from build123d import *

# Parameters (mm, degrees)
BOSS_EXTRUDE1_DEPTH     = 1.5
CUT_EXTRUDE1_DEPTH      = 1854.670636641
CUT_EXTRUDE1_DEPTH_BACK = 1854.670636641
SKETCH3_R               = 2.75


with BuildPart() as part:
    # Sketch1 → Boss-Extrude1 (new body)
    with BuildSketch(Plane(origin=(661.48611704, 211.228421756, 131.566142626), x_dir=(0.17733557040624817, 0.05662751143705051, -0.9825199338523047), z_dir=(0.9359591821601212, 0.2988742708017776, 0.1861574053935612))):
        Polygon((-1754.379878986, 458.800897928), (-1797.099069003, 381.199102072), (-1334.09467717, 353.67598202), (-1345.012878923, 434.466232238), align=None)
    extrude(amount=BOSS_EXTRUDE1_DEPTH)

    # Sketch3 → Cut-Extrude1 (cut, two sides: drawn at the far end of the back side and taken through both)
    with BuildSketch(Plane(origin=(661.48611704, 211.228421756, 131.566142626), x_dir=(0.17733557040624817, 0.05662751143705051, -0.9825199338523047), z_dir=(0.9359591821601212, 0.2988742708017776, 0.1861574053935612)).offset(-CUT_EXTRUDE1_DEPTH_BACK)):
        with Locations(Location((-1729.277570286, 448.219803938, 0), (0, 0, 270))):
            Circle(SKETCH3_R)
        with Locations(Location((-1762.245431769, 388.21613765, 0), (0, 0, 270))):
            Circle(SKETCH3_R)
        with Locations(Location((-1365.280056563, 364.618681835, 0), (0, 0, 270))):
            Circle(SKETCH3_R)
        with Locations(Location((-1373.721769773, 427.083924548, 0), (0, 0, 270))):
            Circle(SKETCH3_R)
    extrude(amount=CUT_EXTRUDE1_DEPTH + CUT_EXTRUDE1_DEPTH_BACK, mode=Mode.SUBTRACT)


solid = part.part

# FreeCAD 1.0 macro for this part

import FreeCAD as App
import Part
import Sketcher
from FreeCAD import Vector
Q = App.Units.Quantity


def add_polygon(sketch, points):
    """Adds a closed chain of lines whose ends are joined by coincident constraints."""
    first, n = sketch.GeometryCount, len(points)
    for a, b in zip(points, points[1:] + points[:1]):
        sketch.addGeometry(Part.LineSegment(App.Vector(*a, 0), App.Vector(*b, 0)), False)
    for i in range(n):
        sketch.addConstraint(Sketcher.Constraint("Coincident", first + i, 2, first + (i + 1) % n, 1))

doc = App.newDocument("Part")
body = doc.addObject("PartDesign::Body", "Body")

# Sketch on an angled plane
sketch1 = body.newObject("Sketcher::SketchObject", "Sketch")
sketch1.Placement = App.Placement(Vector(661.486117, 211.228422, 131.566143), App.Rotation(Vector(0.17733557, 0.056627511, -0.982519934), Vector(-0.30419156, 0.952610883, 0), Vector(0.935959182, 0.298874271, 0.186157405), "ZXY"))
add_polygon(sketch1, [(-1754, 459), (-1797, 381), (-1334, 354), (-1345, 434)])  # lines 0-3
sketch1.addConstraint(Sketcher.Constraint("Parallel", 1, 3))
sketch1.addConstraint(Sketcher.Constraint("DistanceX", 3, 2, 2, 2, Q("409.367 mm")))
sketch1.addConstraint(Sketcher.Constraint("DistanceY", -1, 1, 0, 2, Q("381.199102 mm")))
sketch1.addConstraint(Sketcher.Constraint("DistanceX", 2, 2, 1, 2, Q("10.918202 mm")))
sketch1.addConstraint(Sketcher.Constraint("Distance", 1, Q("463.821721 mm")))
sketch1.addConstraint(Sketcher.Constraint("Distance", 2, Q("81.524669 mm")))
sketch1.addConstraint(Sketcher.Constraint("DistanceX", 0, 2, -1, 1, Q("1797.099069 mm")))
sketch1.addConstraint(Sketcher.Constraint("DistanceY", -1, 1, 1, 2, Q("353.675982 mm")))
pad1 = body.newObject("PartDesign::Pad", "Pad")
pad1.Profile = sketch1
pad1.Length = 1.5

# Sketch on an angled plane
sketch2 = body.newObject("Sketcher::SketchObject", "Sketch001")
sketch2.Placement = App.Placement(Vector(661.486117, 211.228422, 131.566142), App.Rotation(Vector(0.17733557, 0.056627511, -0.982519934), Vector(-0.30419156, 0.952610883, 0), Vector(0.935959182, 0.298874271, 0.186157405), "ZXY"))
sketch2.addGeometry(Part.Circle(Vector(-1729.3, 448.2, 0), Vector(0, 0, 1), 2.8), False)
sketch2.addGeometry(Part.Circle(Vector(-1762.2, 388.2, 0), Vector(0, 0, 1), 2.8), False)
sketch2.addGeometry(Part.Circle(Vector(-1365.3, 364.6, 0), Vector(0, 0, 1), 2.8), False)
sketch2.addGeometry(Part.Circle(Vector(-1373.7, 427.1, 0), Vector(0, 0, 1), 2.8), False)
sketch2.addConstraint(Sketcher.Constraint("Equal", 0, 1))
sketch2.addConstraint(Sketcher.Constraint("Equal", 1, 2))
sketch2.addConstraint(Sketcher.Constraint("Equal", 2, 3))
sketch2.addConstraint(Sketcher.Constraint("Diameter", 0, Q("5.5 mm")))
sketch2.addConstraint(Sketcher.Constraint("DistanceX", 0, 3, 3, 3, Q("355.555801 mm")))
sketch2.addConstraint(Sketcher.Constraint("DistanceX", 0, 3, -1, 1, Q("1729.27757 mm")))
sketch2.addConstraint(Sketcher.Constraint("DistanceX", 1, 3, -1, 1, Q("1762.245432 mm")))
sketch2.addConstraint(Sketcher.Constraint("DistanceY", -1, 1, 2, 3, Q("364.618682 mm")))
sketch2.addConstraint(Sketcher.Constraint("DistanceY", 3, 3, 0, 3, Q("21.135879 mm")))
sketch2.addConstraint(Sketcher.Constraint("DistanceY", -1, 1, 0, 3, Q("448.219804 mm")))
sketch2.addConstraint(Sketcher.Constraint("DistanceY", -1, 1, 1, 3, Q("388.216138 mm")))
sketch2.addConstraint(Sketcher.Constraint("DistanceX", 2, 3, -1, 1, Q("1365.280057 mm")))
pocket1 = body.newObject("PartDesign::Pocket", "Pocket")
pocket1.Profile = sketch2
pocket1.Type = "ThroughAll"
pocket1.Midplane = True

doc.recompute()
